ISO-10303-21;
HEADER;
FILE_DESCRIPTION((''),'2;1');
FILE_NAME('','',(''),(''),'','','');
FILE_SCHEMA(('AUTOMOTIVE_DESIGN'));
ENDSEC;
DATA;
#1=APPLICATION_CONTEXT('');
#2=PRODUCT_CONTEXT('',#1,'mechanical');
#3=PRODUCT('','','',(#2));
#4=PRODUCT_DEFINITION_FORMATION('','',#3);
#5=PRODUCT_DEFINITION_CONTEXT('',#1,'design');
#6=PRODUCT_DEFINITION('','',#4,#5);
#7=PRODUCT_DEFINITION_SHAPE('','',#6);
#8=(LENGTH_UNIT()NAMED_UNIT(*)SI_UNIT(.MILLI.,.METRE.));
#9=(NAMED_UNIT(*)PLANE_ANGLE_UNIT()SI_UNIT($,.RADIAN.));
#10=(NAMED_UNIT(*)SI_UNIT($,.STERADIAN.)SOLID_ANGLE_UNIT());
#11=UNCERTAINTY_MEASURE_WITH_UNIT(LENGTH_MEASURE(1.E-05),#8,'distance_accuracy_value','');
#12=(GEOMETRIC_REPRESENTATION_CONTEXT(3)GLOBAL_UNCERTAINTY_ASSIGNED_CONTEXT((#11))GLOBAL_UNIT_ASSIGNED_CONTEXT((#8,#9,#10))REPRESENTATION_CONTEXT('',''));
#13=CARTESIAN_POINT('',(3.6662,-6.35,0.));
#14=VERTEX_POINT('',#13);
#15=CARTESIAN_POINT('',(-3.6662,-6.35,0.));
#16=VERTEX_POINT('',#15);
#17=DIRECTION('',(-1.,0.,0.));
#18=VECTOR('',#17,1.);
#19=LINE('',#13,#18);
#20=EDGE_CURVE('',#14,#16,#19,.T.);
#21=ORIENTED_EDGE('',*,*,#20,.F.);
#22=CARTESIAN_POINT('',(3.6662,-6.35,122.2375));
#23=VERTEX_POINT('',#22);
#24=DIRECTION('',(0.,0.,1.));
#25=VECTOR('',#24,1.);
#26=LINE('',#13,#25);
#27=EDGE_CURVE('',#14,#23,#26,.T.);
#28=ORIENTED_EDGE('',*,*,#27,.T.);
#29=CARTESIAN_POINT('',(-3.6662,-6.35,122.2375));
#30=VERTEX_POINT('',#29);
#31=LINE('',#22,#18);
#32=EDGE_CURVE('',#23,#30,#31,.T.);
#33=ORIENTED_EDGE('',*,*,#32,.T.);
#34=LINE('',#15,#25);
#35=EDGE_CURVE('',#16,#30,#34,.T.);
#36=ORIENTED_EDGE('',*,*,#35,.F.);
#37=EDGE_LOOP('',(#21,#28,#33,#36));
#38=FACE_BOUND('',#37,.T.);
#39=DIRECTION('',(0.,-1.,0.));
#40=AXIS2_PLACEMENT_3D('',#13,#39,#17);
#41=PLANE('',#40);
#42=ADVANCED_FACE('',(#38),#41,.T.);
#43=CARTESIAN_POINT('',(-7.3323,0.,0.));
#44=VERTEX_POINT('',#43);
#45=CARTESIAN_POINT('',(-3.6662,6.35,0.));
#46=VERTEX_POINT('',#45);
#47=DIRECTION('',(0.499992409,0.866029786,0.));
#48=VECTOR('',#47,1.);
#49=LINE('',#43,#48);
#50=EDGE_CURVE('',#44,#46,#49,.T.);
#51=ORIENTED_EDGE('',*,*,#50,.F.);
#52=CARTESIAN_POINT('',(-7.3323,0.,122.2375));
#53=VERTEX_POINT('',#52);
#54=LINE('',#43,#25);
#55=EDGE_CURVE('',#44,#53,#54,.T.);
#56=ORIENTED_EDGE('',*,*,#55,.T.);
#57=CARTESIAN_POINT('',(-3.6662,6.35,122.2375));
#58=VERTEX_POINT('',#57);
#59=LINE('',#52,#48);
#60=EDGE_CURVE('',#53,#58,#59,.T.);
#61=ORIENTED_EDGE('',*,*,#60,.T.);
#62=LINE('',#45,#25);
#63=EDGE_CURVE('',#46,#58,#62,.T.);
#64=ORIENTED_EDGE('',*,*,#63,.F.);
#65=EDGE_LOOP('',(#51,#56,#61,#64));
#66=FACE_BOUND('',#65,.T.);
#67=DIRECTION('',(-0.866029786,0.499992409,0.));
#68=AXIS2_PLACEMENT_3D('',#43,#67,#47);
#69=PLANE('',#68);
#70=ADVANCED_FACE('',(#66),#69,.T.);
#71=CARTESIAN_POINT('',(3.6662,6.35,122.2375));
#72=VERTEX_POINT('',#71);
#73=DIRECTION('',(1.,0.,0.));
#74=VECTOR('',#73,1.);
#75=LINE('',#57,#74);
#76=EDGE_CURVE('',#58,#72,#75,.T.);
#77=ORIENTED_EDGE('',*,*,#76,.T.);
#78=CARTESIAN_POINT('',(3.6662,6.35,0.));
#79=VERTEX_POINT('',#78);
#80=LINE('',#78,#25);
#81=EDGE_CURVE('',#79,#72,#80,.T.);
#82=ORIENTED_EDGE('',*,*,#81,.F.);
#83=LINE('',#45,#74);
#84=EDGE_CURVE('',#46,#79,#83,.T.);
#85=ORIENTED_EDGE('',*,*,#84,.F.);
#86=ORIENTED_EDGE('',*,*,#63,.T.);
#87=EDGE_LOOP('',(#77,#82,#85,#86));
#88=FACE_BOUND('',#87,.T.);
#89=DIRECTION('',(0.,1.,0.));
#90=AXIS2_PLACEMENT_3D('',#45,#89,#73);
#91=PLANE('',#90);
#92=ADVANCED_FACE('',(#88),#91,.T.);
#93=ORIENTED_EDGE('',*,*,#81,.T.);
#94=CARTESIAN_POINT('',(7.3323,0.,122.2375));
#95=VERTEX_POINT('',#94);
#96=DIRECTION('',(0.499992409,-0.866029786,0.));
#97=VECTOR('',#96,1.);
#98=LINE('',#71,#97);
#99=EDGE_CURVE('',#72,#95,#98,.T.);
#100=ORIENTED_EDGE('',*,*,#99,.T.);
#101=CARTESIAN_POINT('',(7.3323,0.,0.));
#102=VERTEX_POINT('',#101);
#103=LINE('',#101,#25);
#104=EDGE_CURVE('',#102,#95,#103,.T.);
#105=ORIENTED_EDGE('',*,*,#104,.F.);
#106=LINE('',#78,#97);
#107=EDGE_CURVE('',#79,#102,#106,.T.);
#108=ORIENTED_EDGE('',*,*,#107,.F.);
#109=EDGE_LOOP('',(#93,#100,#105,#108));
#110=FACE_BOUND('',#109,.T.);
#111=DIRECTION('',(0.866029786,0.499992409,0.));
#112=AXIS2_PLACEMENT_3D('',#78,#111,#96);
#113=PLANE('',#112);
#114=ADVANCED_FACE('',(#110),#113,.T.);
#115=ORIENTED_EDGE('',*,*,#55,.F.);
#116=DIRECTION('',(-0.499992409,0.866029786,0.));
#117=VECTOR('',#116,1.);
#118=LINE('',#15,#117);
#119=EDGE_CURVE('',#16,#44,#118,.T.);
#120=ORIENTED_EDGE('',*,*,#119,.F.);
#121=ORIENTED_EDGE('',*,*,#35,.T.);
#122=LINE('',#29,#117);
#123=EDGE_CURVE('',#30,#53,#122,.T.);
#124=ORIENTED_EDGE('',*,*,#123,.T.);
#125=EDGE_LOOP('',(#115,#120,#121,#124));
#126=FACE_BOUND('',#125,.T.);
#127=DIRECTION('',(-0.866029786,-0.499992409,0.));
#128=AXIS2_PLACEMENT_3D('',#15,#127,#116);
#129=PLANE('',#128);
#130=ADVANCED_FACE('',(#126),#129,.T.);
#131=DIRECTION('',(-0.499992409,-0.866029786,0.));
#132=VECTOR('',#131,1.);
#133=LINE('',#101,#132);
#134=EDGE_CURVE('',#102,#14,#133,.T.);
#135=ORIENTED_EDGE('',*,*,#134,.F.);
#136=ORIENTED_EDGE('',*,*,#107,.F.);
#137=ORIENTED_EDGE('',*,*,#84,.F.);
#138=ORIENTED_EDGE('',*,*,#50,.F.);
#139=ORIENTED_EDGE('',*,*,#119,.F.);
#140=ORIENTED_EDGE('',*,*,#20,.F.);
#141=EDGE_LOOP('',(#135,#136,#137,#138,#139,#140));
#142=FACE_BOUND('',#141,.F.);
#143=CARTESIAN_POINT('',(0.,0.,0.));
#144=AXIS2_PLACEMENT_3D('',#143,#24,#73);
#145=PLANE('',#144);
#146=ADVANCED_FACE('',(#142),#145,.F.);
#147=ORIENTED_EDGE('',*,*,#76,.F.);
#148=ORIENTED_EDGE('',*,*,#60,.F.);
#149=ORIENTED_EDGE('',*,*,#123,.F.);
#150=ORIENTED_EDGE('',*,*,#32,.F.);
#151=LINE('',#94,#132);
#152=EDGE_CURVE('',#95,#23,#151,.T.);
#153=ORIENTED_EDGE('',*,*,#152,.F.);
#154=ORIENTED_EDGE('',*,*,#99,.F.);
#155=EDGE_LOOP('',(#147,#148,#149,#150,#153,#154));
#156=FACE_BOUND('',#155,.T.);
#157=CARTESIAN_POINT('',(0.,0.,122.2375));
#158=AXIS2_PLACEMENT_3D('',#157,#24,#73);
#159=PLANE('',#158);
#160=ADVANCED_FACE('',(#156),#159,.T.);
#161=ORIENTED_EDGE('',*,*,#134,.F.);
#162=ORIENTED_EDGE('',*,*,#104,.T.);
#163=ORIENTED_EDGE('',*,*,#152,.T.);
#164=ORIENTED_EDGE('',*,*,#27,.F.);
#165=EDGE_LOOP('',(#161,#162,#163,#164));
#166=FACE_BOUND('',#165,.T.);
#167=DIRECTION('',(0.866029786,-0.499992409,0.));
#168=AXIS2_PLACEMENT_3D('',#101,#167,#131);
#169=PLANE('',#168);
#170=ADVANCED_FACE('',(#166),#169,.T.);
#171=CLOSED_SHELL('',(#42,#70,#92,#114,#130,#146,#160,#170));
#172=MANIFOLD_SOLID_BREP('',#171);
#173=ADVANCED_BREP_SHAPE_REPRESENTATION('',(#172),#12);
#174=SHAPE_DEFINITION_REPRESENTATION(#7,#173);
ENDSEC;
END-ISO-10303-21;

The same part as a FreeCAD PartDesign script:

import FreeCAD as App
import Part
import Sketcher
from FreeCAD import Vector
Q = App.Units.Quantity

doc = App.newDocument("Part")
body = doc.addObject("PartDesign::Body", "Body")

sketch1 = body.newObject("Sketcher::SketchObject", "Sketch")
sketch1.AttachmentSupport = (doc.getObject("XY_Plane"), [""])
sketch1.MapMode = "FlatFace"
sketch1.addGeometry([
    Part.LineSegment(Vector(3.6662, -6.35, 0), Vector(7.3323, 0, 0)),
    Part.LineSegment(Vector(7.3323, 0, 0), Vector(3.6662, 6.35, 0)),
    Part.LineSegment(Vector(3.6662, 6.35, 0), Vector(-3.6662, 6.35, 0)),
    Part.LineSegment(Vector(-3.6662, 6.35, 0), Vector(-7.3323, 0, 0)),
    Part.LineSegment(Vector(-7.3323, 0, 0), Vector(-3.6662, -6.35, 0)),
    Part.LineSegment(Vector(-3.6662, -6.35, 0), Vector(3.6662, -6.35, 0)),
], False)
sketch1.addConstraint([
    Sketcher.Constraint("Coincident", 0, 2, 1, 1),
    Sketcher.Constraint("Coincident", 1, 2, 2, 1),
    Sketcher.Constraint("Coincident", 2, 2, 3, 1),
    Sketcher.Constraint("Coincident", 3, 2, 4, 1),
    Sketcher.Constraint("Coincident", 4, 2, 5, 1),
    Sketcher.Constraint("Coincident", 5, 2, 0, 1),
    Sketcher.Constraint("Horizontal", 2),
    Sketcher.Constraint("Horizontal", 5),
    Sketcher.Constraint("Symmetric", 0, 2, 3, 2, -1, 1),
    Sketcher.Constraint("Symmetric", 1, 2, 4, 2, -1, 1),
    Sketcher.Constraint("PointOnObject", 0, 2, -1),
    Sketcher.Constraint("Parallel", 0, 3),
    Sketcher.Constraint("Vertical", 2, 2, 4, 2),
    Sketcher.Constraint("DistanceY", 4, 2, 2, 2, Q("0.5 in")),
    Sketcher.Constraint("Angle", 0, Q("60.0005 deg")),
    Sketcher.Constraint("DistanceX", 2, 2, 0, 2, Q("0.433 in")),
])
pad1 = body.newObject("PartDesign::Pad", "Pad")
pad1.Profile = sketch1
pad1.Length = Q("4.8125 in")

doc.recompute()
